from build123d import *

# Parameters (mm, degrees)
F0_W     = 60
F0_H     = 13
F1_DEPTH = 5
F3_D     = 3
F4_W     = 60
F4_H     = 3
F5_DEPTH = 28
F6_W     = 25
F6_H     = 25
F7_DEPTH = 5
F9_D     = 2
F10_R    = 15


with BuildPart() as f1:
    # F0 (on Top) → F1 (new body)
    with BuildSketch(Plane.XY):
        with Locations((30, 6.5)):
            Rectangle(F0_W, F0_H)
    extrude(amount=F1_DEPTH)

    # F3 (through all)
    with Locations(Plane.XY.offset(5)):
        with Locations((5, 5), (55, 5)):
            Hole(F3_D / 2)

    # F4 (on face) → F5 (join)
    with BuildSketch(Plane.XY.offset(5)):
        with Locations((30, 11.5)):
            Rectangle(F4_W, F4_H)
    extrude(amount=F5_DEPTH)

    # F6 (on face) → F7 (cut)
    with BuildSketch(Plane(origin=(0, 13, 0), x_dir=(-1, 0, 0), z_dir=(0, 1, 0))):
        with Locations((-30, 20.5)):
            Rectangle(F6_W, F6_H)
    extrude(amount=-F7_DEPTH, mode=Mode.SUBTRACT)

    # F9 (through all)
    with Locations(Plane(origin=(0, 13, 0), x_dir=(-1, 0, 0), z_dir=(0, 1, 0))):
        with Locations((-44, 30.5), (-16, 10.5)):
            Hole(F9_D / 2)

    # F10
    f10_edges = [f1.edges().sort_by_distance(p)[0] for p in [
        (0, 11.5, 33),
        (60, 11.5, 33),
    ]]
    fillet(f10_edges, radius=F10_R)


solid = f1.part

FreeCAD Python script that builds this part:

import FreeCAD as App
import Part
import Sketcher
from FreeCAD import Vector


def edges_at(feature, points):
    """Names of the edges that pass closest to the given points."""
    edges = feature.Shape.Edges
    near = lambda p: min(range(len(edges)), key=lambda i: edges[i].distToShape(Part.Vertex(*p))[0])
    return sorted({f"Edge{near(p) + 1}" for p in points})


def add_polygon(sketch, points):
    """Adds a closed chain of lines whose ends are joined by coincident constraints."""
    first, n = sketch.GeometryCount, len(points)
    for a, b in zip(points, points[1:] + points[:1]):
        sketch.addGeometry(Part.LineSegment(App.Vector(*a, 0), App.Vector(*b, 0)), False)
    for i in range(n):
        sketch.addConstraint(Sketcher.Constraint("Coincident", first + i, 2, first + (i + 1) % n, 1))

doc = App.newDocument("Part")
body = doc.addObject("PartDesign::Body", "Body")

# Sketch on XY plane
sketch1 = body.newObject("Sketcher::SketchObject", "Sketch")
sketch1.AttachmentSupport = (doc.getObject("XY_Plane"), [""])
sketch1.MapMode = "FlatFace"
add_polygon(sketch1, [(0, 13), (0, 0), (60, 0), (60, 13)])  # lines 0-3
sketch1.addConstraint(Sketcher.Constraint("Vertical", 0))
sketch1.addConstraint(Sketcher.Constraint("Horizontal", 1))
sketch1.addConstraint(Sketcher.Constraint("Vertical", 2))
sketch1.addConstraint(Sketcher.Constraint("Horizontal", 3))
sketch1.addConstraint(Sketcher.Constraint("Coincident", 0, 2, -1, 1))
sketch1.addConstraint(Sketcher.Constraint("DistanceX", 1, 1, 1, 2, 60.0))
sketch1.addConstraint(Sketcher.Constraint("DistanceY", 0, 2, 0, 1, 13.0))
pad1 = body.newObject("PartDesign::Pad", "Pad")
pad1.Profile = sketch1
pad1.Length = 5

# Sketch on XY plane
sketch2 = body.newObject("Sketcher::SketchObject", "Sketch001")
sketch2.AttachmentSupport = (doc.getObject("XY_Plane"), [""])
sketch2.MapMode = "FlatFace"
sketch2.AttachmentOffset = App.Placement(Vector(0, 0, 5), App.Rotation())
sketch2.addGeometry(Part.Circle(Vector(5, 5, 0), Vector(0, 0, 1), 1.5), False)
sketch2.addGeometry(Part.Circle(Vector(55, 5, 0), Vector(0, 0, 1), 1.5), False)
sketch2.addConstraint(Sketcher.Constraint("Equal", 0, 1))
sketch2.addConstraint(Sketcher.Constraint("Horizontal", 0, 3, 1, 3))
sketch2.addConstraint(Sketcher.Constraint("Diameter", 0, 3.0))
sketch2.addConstraint(Sketcher.Constraint("DistanceX", -1, 1, 0, 3, 5.0))
sketch2.addConstraint(Sketcher.Constraint("DistanceY", -1, 1, 0, 3, 5.0))
sketch2.addConstraint(Sketcher.Constraint("DistanceX", -1, 1, 1, 3, 55.0))
doc.recompute()
hole = body.newObject("PartDesign::Hole", "Hole")
hole.Profile = sketch2
hole.ThreadType = "None"
hole.Diameter = 3
hole.DepthType = "ThroughAll"

# Sketch on XY plane
sketch3 = body.newObject("Sketcher::SketchObject", "Sketch002")
sketch3.AttachmentSupport = (doc.getObject("XY_Plane"), [""])
sketch3.MapMode = "FlatFace"
sketch3.AttachmentOffset = App.Placement(Vector(0, 0, 5), App.Rotation())
add_polygon(sketch3, [(0, 13), (0, 10), (60, 10), (60, 13)])  # lines 0-3
sketch3.addConstraint(Sketcher.Constraint("Vertical", 0))
sketch3.addConstraint(Sketcher.Constraint("Horizontal", 1))
sketch3.addConstraint(Sketcher.Constraint("Vertical", 2))
sketch3.addConstraint(Sketcher.Constraint("Horizontal", 3))
sketch3.addConstraint(Sketcher.Constraint("PointOnObject", 0, 2, -2))
sketch3.addConstraint(Sketcher.Constraint("DistanceX", 1, 1, 1, 2, 60.0))
sketch3.addConstraint(Sketcher.Constraint("DistanceY", 0, 2, 0, 1, 3.0))
sketch3.addConstraint(Sketcher.Constraint("DistanceY", -1, 1, 0, 2, 10.0))
pad2 = body.newObject("PartDesign::Pad", "Pad001")
pad2.Profile = sketch3
pad2.Length = 28

# Sketch on XZ plane
sketch4 = body.newObject("Sketcher::SketchObject", "Sketch003")
sketch4.AttachmentSupport = (doc.getObject("XZ_Plane"), [""])
sketch4.MapMode = "FlatFace"
sketch4.AttachmentOffset = App.Placement(Vector(0, 0, -13), App.Rotation())
add_polygon(sketch4, [(42.5, 33), (42.5, 8), (17.5, 8), (17.5, 33)])  # lines 0-3
sketch4.addConstraint(Sketcher.Constraint("Vertical", 0))
sketch4.addConstraint(Sketcher.Constraint("Horizontal", 1))
sketch4.addConstraint(Sketcher.Constraint("Vertical", 2))
sketch4.addConstraint(Sketcher.Constraint("Horizontal", 3))
sketch4.addConstraint(Sketcher.Constraint("Equal", 3, 0))
sketch4.addConstraint(Sketcher.Constraint("DistanceX", 1, 2, 1, 1, 25.0))
sketch4.addConstraint(Sketcher.Constraint("DistanceY", -1, 1, 0, 2, 8.0))
sketch4.addConstraint(Sketcher.Constraint("DistanceX", -1, 1, 0, 2, 42.5))
pocket1 = body.newObject("PartDesign::Pocket", "Pocket")
pocket1.Profile = sketch4
pocket1.Length = 5
pocket1.Reversed = True

# Sketch on XZ plane
sketch5 = body.newObject("Sketcher::SketchObject", "Sketch004")
sketch5.AttachmentSupport = (doc.getObject("XZ_Plane"), [""])
sketch5.MapMode = "FlatFace"
sketch5.AttachmentOffset = App.Placement(Vector(0, 0, -13), App.Rotation())
sketch5.addGeometry(Part.Circle(Vector(44, 30.5, 0), Vector(0, 0, 1), 1), False)
sketch5.addGeometry(Part.Circle(Vector(16, 10.5, 0), Vector(0, 0, 1), 1), False)
sketch5.addConstraint(Sketcher.Constraint("Equal", 0, 1))
sketch5.addConstraint(Sketcher.Constraint("Diameter", 0, 2.0))
sketch5.addConstraint(Sketcher.Constraint("DistanceX", -1, 1, 0, 3, 44.0))
sketch5.addConstraint(Sketcher.Constraint("DistanceX", -1, 1, 1, 3, 16.0))
sketch5.addConstraint(Sketcher.Constraint("DistanceY", 1, 3, 0, 3, 20.0))
sketch5.addConstraint(Sketcher.Constraint("DistanceY", -1, 1, 0, 3, 30.5))
doc.recompute()
hole2 = body.newObject("PartDesign::Hole", "Hole001")
hole2.Profile = sketch5
hole2.ThreadType = "None"
hole2.Diameter = 2
hole2.DepthType = "ThroughAll"
hole2.Reversed = True
doc.recompute()

fillet = body.newObject("PartDesign::Fillet", "Fillet")
fillet.Base = (hole2, edges_at(hole2, [(0, 11.5, 33), (60, 11.5, 33)]))
fillet.Radius = 15

doc.recompute()
